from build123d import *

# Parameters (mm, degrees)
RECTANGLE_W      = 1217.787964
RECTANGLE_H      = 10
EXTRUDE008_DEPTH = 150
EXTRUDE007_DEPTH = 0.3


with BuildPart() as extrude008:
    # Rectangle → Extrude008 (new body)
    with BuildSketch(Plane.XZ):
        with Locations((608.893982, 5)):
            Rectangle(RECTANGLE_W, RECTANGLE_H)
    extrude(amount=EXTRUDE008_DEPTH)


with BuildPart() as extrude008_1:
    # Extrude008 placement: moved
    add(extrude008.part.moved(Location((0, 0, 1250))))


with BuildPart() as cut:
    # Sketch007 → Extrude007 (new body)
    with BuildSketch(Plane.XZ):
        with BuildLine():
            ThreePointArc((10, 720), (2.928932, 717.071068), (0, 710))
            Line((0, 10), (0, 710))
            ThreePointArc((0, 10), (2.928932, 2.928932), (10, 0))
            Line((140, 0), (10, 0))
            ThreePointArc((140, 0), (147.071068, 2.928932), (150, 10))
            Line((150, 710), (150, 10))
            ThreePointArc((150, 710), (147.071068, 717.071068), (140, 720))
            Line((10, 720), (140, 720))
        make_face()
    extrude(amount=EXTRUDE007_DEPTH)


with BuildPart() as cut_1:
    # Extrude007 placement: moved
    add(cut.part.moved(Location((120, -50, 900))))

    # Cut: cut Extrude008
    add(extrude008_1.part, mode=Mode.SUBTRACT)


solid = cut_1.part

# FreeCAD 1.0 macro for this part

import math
import FreeCAD as App
import Part
import Sketcher
from FreeCAD import Vector

doc = App.newDocument("Part")
params = doc.addObject("Spreadsheet::Sheet", "Params")
for row, (alias, value) in enumerate([
    ("sketch1_height", "10 mm"),
    ("pad1_length", "150 mm"),
    ("sketch2_radius", "9.999999 mm"),
    ("sketch2_width", "130 mm"),
    ("sketch2_height", "700 mm"),
    ("pad2_length", "0.3 mm"),
], start=1):
    params.set(f"A{row}", alias)
    params.set(f"B{row}", "=" + value)
    params.setAlias(f"B{row}", alias)

body = doc.addObject("PartDesign::Body", "Body")

# Sketch on XZ plane
sketch1 = body.newObject("Sketcher::SketchObject", "Sketch")
sketch1.AttachmentSupport = (doc.getObject("XZ_Plane"), [""])
sketch1.MapMode = "FlatFace"
sketch1.addGeometry(Part.LineSegment(Vector(0, 10, 0), Vector(0, 0, 0)), False)
sketch1.addGeometry(Part.LineSegment(Vector(0, 0, 0), Vector(1217.787964, 0, 0)), False)
sketch1.addGeometry(Part.LineSegment(Vector(1217.787964, 0, 0), Vector(1217.787964, 10, 0)), False)
sketch1.addGeometry(Part.LineSegment(Vector(1217.787964, 10, 0), Vector(0, 10, 0)), False)
sketch1.addConstraint(Sketcher.Constraint("Coincident", 0, 2, 1, 1))
sketch1.addConstraint(Sketcher.Constraint("Coincident", 1, 2, 2, 1))
sketch1.addConstraint(Sketcher.Constraint("Coincident", 2, 2, 3, 1))
sketch1.addConstraint(Sketcher.Constraint("Coincident", 3, 2, 0, 1))
sketch1.addConstraint(Sketcher.Constraint("Vertical", 0))
sketch1.addConstraint(Sketcher.Constraint("Horizontal", 1))
sketch1.addConstraint(Sketcher.Constraint("Vertical", 2))
sketch1.addConstraint(Sketcher.Constraint("Horizontal", 3))
sketch1.addConstraint(Sketcher.Constraint("Coincident", 0, 2, -1, 1))
sketch1.addConstraint(Sketcher.Constraint("DistanceY", 0, 2, 0, 1, 10.0))
sketch1.addConstraint(Sketcher.Constraint("DistanceX", 1, 1, 1, 2, 1217.787964))
sketch1.setExpression("Constraints[9]", "Params.sketch1_height")
pad1 = body.newObject("PartDesign::Pad", "Pad")
pad1.Profile = sketch1
pad1.setExpression("Length", "Params.pad1_length")
body2 = doc.addObject("PartDesign::Body", "Body001")
doc.recompute()

body.Placement = App.Placement(Vector(0, 0, 1250), App.Rotation(Vector(0, 0, 1), 0))
boolean = body2.newObject("PartDesign::Boolean", "Boolean")
boolean.Type = "Fuse"
boolean.addObjects([body])
body3 = doc.addObject("PartDesign::Body", "Body002")

# Sketch on XZ plane
sketch2 = body3.newObject("Sketcher::SketchObject", "Sketch001")
sketch2.AttachmentSupport = (doc.getObject("XZ_Plane002"), [""])
sketch2.MapMode = "FlatFace"
sketch2.addGeometry(Part.ArcOfCircle(Part.Circle(Vector(9.999999, 710.000001, 0), Vector(0, 0, 1), 9.999999), math.radians(89.999996), math.radians(180.000004)), False)
sketch2.addGeometry(Part.LineSegment(Vector(0, 710, 0), Vector(0, 10, 0)), False)
sketch2.addGeometry(Part.ArcOfCircle(Part.Circle(Vector(9.999999, 9.999999, 0), Vector(0, 0, 1), 9.999999), math.radians(179.999996), math.radians(270.000004)), False)
sketch2.addGeometry(Part.LineSegment(Vector(10, 0, 0), Vector(140, 0, 0)), False)
sketch2.addGeometry(Part.ArcOfCircle(Part.Circle(Vector(140.000001, 9.999999, 0), Vector(0, 0, 1), 9.999999), math.radians(-90.000004), math.radians(0.000004)), False)
sketch2.addGeometry(Part.LineSegment(Vector(150, 10, 0), Vector(150, 710, 0)), False)
sketch2.addGeometry(Part.ArcOfCircle(Part.Circle(Vector(140.000001, 710.000001, 0), Vector(0, 0, 1), 9.999999), math.radians(-0.000004), math.radians(90.000004)), False)
sketch2.addGeometry(Part.LineSegment(Vector(140, 720, 0), Vector(10, 720, 0)), False)
sketch2.addConstraint(Sketcher.Constraint("Tangent", 0, 2, 1, 1))
sketch2.addConstraint(Sketcher.Constraint("Tangent", 1, 2, 2, 1))
sketch2.addConstraint(Sketcher.Constraint("Tangent", 2, 2, 3, 1))
sketch2.addConstraint(Sketcher.Constraint("Tangent", 3, 2, 4, 1))
sketch2.addConstraint(Sketcher.Constraint("Tangent", 4, 2, 5, 1))
sketch2.addConstraint(Sketcher.Constraint("Tangent", 5, 2, 6, 1))
sketch2.addConstraint(Sketcher.Constraint("Tangent", 6, 2, 7, 1))
sketch2.addConstraint(Sketcher.Constraint("Tangent", 7, 2, 0, 1))
sketch2.addConstraint(Sketcher.Constraint("Vertical", 1))
sketch2.addConstraint(Sketcher.Constraint("Horizontal", 3))
sketch2.addConstraint(Sketcher.Constraint("Vertical", 5))
sketch2.addConstraint(Sketcher.Constraint("Horizontal", 7))
sketch2.addConstraint(Sketcher.Constraint("Equal", 0, 2))
sketch2.addConstraint(Sketcher.Constraint("Equal", 2, 4))
sketch2.addConstraint(Sketcher.Constraint("Equal", 4, 6))
sketch2.addConstraint(Sketcher.Constraint("PointOnObject", 0, 2, -2))
sketch2.addConstraint(Sketcher.Constraint("PointOnObject", 2, 2, -1))
sketch2.addConstraint(Sketcher.Constraint("Radius", 0, 9.999999))
sketch2.addConstraint(Sketcher.Constraint("DistanceX", 3, 1, 3, 2, 130.0))
sketch2.addConstraint(Sketcher.Constraint("DistanceY", 1, 2, 1, 1, 700.0))
sketch2.setExpression("Constraints[17]", "Params.sketch2_radius")
sketch2.setExpression("Constraints[18]", "Params.sketch2_width")
sketch2.setExpression("Constraints[19]", "Params.sketch2_height")
pad2 = body3.newObject("PartDesign::Pad", "Pad001")
pad2.Profile = sketch2
pad2.setExpression("Length", "Params.pad2_length")
body4 = doc.addObject("PartDesign::Body", "Body003")
body4.AllowCompound = True
doc.recompute()

body3.Placement = App.Placement(Vector(120, -50, 900), App.Rotation(Vector(0, 0, 1), 0))
boolean2 = body4.newObject("PartDesign::Boolean", "Boolean001")
boolean2.Type = "Fuse"
boolean2.addObjects([body3])
doc.recompute()

boolean3 = body4.newObject("PartDesign::Boolean", "Boolean002")
boolean3.Type = "Cut"
boolean3.addObjects([body2])

doc.recompute()
